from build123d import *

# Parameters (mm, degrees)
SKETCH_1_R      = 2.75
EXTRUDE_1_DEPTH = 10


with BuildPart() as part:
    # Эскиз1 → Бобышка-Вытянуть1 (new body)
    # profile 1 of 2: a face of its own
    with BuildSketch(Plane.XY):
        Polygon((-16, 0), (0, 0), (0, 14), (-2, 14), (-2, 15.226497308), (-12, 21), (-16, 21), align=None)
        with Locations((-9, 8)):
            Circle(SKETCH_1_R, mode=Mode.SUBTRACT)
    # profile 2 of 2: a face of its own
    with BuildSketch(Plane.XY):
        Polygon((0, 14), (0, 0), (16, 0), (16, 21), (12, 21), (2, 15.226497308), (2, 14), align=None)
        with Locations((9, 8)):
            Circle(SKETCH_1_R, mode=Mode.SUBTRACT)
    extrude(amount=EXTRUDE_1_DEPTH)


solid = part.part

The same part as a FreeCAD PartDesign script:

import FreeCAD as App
import Part
import Sketcher
from FreeCAD import Vector
Q = App.Units.Quantity

doc = App.newDocument("Part")
body = doc.addObject("PartDesign::Body", "Body")

# Sketch on XY plane
sketch1 = doc.addObject("Sketcher::SketchObject", "Sketch")
body.addObject(sketch1)
sketch1.AttachmentSupport = (doc.XY_Plane, [""])
sketch1.MapMode = "FlatFace"
sketch1.addGeometry(Part.LineSegment(Vector(-16, 0, 0), Vector(16, 0, 0)), False)
sketch1.addGeometry(Part.LineSegment(Vector(16, 0, 0), Vector(16, 21, 0)), False)
sketch1.addGeometry(Part.LineSegment(Vector(16, 21, 0), Vector(12, 21, 0)), False)
sketch1.addGeometry(Part.LineSegment(Vector(12, 21, 0), Vector(2, 15.2, 0)), False)
sketch1.addGeometry(Part.LineSegment(Vector(2, 15.2, 0), Vector(2, 14, 0)), False)
sketch1.addGeometry(Part.LineSegment(Vector(2, 14, 0), Vector(-2, 14, 0)), False)
sketch1.addGeometry(Part.LineSegment(Vector(-2, 14, 0), Vector(-2, 15.2, 0)), False)
sketch1.addGeometry(Part.LineSegment(Vector(-2, 15.2, 0), Vector(-12, 21, 0)), False)
sketch1.addGeometry(Part.LineSegment(Vector(-12, 21, 0), Vector(-16, 21, 0)), False)
sketch1.addGeometry(Part.LineSegment(Vector(-16, 21, 0), Vector(-16, 0, 0)), False)
sketch1.addGeometry(Part.Circle(Vector(-9, 8, 0), Vector(0, 0, 1), 2.8), False)
sketch1.addGeometry(Part.Circle(Vector(9, 8, 0), Vector(0, 0, 1), 2.8), False)
sketch1.addConstraint(Sketcher.Constraint("Coincident", 0, 2, 1, 1))
sketch1.addConstraint(Sketcher.Constraint("Coincident", 1, 2, 2, 1))
sketch1.addConstraint(Sketcher.Constraint("Coincident", 2, 2, 3, 1))
sketch1.addConstraint(Sketcher.Constraint("Coincident", 3, 2, 4, 1))
sketch1.addConstraint(Sketcher.Constraint("Coincident", 4, 2, 5, 1))
sketch1.addConstraint(Sketcher.Constraint("Coincident", 5, 2, 6, 1))
sketch1.addConstraint(Sketcher.Constraint("Coincident", 6, 2, 7, 1))
sketch1.addConstraint(Sketcher.Constraint("Coincident", 7, 2, 8, 1))
sketch1.addConstraint(Sketcher.Constraint("Coincident", 8, 2, 9, 1))
sketch1.addConstraint(Sketcher.Constraint("Coincident", 9, 2, 0, 1))
sketch1.addConstraint(Sketcher.Constraint("Horizontal", 0))
sketch1.addConstraint(Sketcher.Constraint("Vertical", 1))
sketch1.addConstraint(Sketcher.Constraint("Horizontal", 2))
sketch1.addConstraint(Sketcher.Constraint("Vertical", 4))
sketch1.addConstraint(Sketcher.Constraint("Horizontal", 5))
sketch1.addConstraint(Sketcher.Constraint("Vertical", 6))
sketch1.addConstraint(Sketcher.Constraint("Horizontal", 8))
sketch1.addConstraint(Sketcher.Constraint("Vertical", 9))
sketch1.addConstraint(Sketcher.Constraint("Equal", 10, 11))
sketch1.addConstraint(Sketcher.Constraint("Symmetric", 0, 2, 9, 2, -1, 1))
sketch1.addConstraint(Sketcher.Constraint("Symmetric", 10, 3, 11, 3, -2))
sketch1.addConstraint(Sketcher.Constraint("Symmetric", 3, 2, 6, 2, -2))
sketch1.addConstraint(Sketcher.Constraint("Symmetric", 2, 2, 7, 2, -2))
sketch1.addConstraint(Sketcher.Constraint("Equal", 2, 5))
sketch1.addConstraint(Sketcher.Constraint("Diameter", 10, 5.5))
sketch1.addConstraint(Sketcher.Constraint("DistanceX", 0, 1, 0, 2, 32.0))
sketch1.addConstraint(Sketcher.Constraint("DistanceX", 2, 2, 2, 1, 4.0))
sketch1.addConstraint(Sketcher.Constraint("DistanceY", 1, 1, 1, 2, 21.0))
sketch1.addConstraint(Sketcher.Constraint("Angle", 3, Q("-150 deg")))
sketch1.addConstraint(Sketcher.Constraint("DistanceX", 10, 3, -1, 1, 9.0))
sketch1.addConstraint(Sketcher.Constraint("DistanceY", -1, 1, 10, 3, 8.0))
sketch1.addConstraint(Sketcher.Constraint("DistanceY", -1, 1, 4, 2, 14.0))
pad1 = doc.addObject("PartDesign::Pad", "Pad")
body.addObject(pad1)
pad1.Profile = sketch1
pad1.Length = 10

doc.recompute()
